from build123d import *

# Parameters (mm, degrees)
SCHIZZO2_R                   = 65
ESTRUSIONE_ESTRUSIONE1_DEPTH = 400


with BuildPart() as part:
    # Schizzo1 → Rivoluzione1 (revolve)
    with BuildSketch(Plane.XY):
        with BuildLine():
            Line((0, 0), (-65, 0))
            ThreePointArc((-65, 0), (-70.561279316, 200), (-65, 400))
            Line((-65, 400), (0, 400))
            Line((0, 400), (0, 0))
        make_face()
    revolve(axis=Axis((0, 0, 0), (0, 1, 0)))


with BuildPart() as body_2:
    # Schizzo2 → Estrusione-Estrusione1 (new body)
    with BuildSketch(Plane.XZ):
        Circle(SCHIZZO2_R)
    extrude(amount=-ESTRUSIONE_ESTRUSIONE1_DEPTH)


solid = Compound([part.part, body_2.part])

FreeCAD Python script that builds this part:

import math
import FreeCAD as App
import Part
import Sketcher

V = App.Vector
Q = App.Units.Quantity

doc = App.newDocument("Part")
body = doc.addObject("PartDesign::Body", "Body")

# Sketch on XY plane
sketch1 = body.newObject("Sketcher::SketchObject", "Sketch")
sketch1.AttachmentSupport = (doc.getObject("XY_Plane"), [""])
sketch1.MapMode = "FlatFace"
sketch1.addGeometry(Part.LineSegment(V(-65, 0, 0), V(0, 0, 0)), False)
sketch1.addGeometry(Part.LineSegment(V(0, 0, 0), V(0, 400, 0)), False)
sketch1.addGeometry(Part.LineSegment(V(0, 400, 0), V(-65, 400, 0)), False)
sketch1.addGeometry(Part.ArcOfCircle(Part.Circle(V(3529, 200, 0), V(0, 0, 1), 3599), math.radians(176.81), math.radians(183.19)), False)
sketch1.addConstraint(Sketcher.Constraint("Coincident", 0, 2, 1, 1))
sketch1.addConstraint(Sketcher.Constraint("Coincident", 1, 2, 2, 1))
sketch1.addConstraint(Sketcher.Constraint("Coincident", 2, 2, 3, 1))
sketch1.addConstraint(Sketcher.Constraint("Coincident", 3, 2, 0, 1))
sketch1.addConstraint(Sketcher.Constraint("Horizontal", 0))
sketch1.addConstraint(Sketcher.Constraint("Vertical", 1))
sketch1.addConstraint(Sketcher.Constraint("Horizontal", 2))
sketch1.addConstraint(Sketcher.Constraint("Coincident", 0, 2, -1, 1))
sketch1.addConstraint(Sketcher.Constraint("Equal", 0, 2))
sketch1.addConstraint(Sketcher.Constraint("DistanceX", 0, 1, 0, 2, Q("65 mm")))
sketch1.addConstraint(Sketcher.Constraint("DistanceY", 1, 1, 1, 2, Q("400 mm")))
sketch1.addConstraint(Sketcher.Constraint("Radius", 3, Q("3599.07546 mm")))
revolution = body.newObject("PartDesign::Revolution", "Revolution")
revolution.Profile = sketch1
revolution.ReferenceAxis = (sketch1, ["V_Axis"])
revolution.Angle = 360
body2 = doc.addObject("PartDesign::Body", "Body001")

# Sketch on XZ plane
sketch2 = body2.newObject("Sketcher::SketchObject", "Sketch001")
sketch2.AttachmentSupport = (doc.getObject("XZ_Plane001"), [""])
sketch2.MapMode = "FlatFace"
sketch2.addGeometry(Part.Circle(V(0, 0, 0), V(0, 0, 1), 65), False)
sketch2.addConstraint(Sketcher.Constraint("Coincident", 0, 3, -1, 1))
sketch2.addConstraint(Sketcher.Constraint("Diameter", 0, Q("130 mm")))
pad1 = body2.newObject("PartDesign::Pad", "Pad")
pad1.Profile = sketch2
pad1.Length = 400
pad1.Reversed = True

doc.recompute()
